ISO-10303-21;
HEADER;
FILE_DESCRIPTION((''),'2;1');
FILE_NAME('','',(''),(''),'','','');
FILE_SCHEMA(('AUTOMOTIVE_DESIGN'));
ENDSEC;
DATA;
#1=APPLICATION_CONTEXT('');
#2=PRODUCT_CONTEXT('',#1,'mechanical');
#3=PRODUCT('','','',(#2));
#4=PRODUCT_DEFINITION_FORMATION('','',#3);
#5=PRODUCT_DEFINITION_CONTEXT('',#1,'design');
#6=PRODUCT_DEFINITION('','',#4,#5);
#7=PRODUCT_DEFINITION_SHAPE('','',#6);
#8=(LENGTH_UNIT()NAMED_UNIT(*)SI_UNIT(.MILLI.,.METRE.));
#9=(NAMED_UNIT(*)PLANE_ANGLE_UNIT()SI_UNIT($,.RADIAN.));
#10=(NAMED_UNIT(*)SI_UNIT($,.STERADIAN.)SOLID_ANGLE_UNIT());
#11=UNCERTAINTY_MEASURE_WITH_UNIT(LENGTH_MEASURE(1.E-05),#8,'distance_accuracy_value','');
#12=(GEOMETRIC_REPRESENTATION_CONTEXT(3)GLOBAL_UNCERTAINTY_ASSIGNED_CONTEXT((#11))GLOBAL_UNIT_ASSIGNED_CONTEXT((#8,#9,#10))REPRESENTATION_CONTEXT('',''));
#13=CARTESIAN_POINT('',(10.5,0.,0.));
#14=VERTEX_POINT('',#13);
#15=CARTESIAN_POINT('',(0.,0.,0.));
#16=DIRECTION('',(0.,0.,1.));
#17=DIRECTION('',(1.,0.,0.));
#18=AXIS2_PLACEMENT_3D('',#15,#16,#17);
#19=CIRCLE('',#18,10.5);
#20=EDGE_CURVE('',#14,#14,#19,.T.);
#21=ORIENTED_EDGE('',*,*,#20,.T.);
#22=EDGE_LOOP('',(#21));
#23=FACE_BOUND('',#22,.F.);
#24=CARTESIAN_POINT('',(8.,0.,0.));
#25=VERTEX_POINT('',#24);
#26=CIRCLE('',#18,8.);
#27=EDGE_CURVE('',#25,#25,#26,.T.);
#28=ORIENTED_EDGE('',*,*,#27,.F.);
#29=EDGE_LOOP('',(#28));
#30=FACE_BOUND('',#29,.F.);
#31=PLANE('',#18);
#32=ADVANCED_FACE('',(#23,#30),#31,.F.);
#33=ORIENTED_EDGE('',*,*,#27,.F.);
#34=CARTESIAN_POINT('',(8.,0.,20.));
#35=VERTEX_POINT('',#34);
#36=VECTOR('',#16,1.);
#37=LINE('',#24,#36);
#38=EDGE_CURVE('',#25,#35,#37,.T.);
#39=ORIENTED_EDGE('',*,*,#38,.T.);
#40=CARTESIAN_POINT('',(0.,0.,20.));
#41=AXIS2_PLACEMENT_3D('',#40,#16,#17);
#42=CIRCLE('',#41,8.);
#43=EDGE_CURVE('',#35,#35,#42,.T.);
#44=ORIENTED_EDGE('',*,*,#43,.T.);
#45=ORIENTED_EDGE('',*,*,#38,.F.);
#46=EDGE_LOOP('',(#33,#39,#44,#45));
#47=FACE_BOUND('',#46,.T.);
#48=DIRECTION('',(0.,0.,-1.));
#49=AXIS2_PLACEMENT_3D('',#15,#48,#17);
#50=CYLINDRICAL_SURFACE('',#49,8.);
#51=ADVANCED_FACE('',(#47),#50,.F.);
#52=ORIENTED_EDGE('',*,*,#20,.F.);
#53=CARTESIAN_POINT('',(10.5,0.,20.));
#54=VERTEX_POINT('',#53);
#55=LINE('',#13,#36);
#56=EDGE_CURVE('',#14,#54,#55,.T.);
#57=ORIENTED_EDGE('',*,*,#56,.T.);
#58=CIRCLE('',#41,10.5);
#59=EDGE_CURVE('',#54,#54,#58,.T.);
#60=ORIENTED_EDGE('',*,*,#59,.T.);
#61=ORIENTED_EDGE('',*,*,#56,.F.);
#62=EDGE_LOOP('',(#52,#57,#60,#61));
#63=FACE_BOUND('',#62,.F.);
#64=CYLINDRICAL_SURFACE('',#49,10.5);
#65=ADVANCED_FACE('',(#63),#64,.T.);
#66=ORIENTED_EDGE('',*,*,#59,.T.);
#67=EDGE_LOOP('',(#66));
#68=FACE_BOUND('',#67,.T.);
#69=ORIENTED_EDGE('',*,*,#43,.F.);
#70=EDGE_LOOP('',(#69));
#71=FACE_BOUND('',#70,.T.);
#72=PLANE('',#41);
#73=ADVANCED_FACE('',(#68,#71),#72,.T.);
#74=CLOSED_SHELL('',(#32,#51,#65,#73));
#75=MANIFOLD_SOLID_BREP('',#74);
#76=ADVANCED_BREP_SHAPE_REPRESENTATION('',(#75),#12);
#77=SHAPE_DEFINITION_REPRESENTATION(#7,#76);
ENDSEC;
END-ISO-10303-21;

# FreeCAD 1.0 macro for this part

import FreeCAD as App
import Part
import Sketcher
from FreeCAD import Vector

doc = App.newDocument("Part")
body = doc.addObject("PartDesign::Body", "Body")

sketch1 = body.newObject("Sketcher::SketchObject", "Sketch")
sketch1.AttachmentSupport = (doc.getObject("XY_Plane"), [""])
sketch1.MapMode = "FlatFace"
sketch1.addGeometry([
    Part.Circle(Vector(0, 0, 0), Vector(0, 0, 1), 10),
    Part.Circle(Vector(0, 0, 0), Vector(0, 0, 1), 8),
], False)
sketch1.addConstraint([
    Sketcher.Constraint("Coincident", 0, 3, -1, 1),
    Sketcher.Constraint("Coincident", 1, 3, -1, 1),
    Sketcher.Constraint("Diameter", 0, 21.0),
    Sketcher.Constraint("Diameter", 1, 16.0),
])
pad1 = body.newObject("PartDesign::Pad", "Pad")
pad1.Profile = sketch1
pad1.Length = 20

doc.recompute()
